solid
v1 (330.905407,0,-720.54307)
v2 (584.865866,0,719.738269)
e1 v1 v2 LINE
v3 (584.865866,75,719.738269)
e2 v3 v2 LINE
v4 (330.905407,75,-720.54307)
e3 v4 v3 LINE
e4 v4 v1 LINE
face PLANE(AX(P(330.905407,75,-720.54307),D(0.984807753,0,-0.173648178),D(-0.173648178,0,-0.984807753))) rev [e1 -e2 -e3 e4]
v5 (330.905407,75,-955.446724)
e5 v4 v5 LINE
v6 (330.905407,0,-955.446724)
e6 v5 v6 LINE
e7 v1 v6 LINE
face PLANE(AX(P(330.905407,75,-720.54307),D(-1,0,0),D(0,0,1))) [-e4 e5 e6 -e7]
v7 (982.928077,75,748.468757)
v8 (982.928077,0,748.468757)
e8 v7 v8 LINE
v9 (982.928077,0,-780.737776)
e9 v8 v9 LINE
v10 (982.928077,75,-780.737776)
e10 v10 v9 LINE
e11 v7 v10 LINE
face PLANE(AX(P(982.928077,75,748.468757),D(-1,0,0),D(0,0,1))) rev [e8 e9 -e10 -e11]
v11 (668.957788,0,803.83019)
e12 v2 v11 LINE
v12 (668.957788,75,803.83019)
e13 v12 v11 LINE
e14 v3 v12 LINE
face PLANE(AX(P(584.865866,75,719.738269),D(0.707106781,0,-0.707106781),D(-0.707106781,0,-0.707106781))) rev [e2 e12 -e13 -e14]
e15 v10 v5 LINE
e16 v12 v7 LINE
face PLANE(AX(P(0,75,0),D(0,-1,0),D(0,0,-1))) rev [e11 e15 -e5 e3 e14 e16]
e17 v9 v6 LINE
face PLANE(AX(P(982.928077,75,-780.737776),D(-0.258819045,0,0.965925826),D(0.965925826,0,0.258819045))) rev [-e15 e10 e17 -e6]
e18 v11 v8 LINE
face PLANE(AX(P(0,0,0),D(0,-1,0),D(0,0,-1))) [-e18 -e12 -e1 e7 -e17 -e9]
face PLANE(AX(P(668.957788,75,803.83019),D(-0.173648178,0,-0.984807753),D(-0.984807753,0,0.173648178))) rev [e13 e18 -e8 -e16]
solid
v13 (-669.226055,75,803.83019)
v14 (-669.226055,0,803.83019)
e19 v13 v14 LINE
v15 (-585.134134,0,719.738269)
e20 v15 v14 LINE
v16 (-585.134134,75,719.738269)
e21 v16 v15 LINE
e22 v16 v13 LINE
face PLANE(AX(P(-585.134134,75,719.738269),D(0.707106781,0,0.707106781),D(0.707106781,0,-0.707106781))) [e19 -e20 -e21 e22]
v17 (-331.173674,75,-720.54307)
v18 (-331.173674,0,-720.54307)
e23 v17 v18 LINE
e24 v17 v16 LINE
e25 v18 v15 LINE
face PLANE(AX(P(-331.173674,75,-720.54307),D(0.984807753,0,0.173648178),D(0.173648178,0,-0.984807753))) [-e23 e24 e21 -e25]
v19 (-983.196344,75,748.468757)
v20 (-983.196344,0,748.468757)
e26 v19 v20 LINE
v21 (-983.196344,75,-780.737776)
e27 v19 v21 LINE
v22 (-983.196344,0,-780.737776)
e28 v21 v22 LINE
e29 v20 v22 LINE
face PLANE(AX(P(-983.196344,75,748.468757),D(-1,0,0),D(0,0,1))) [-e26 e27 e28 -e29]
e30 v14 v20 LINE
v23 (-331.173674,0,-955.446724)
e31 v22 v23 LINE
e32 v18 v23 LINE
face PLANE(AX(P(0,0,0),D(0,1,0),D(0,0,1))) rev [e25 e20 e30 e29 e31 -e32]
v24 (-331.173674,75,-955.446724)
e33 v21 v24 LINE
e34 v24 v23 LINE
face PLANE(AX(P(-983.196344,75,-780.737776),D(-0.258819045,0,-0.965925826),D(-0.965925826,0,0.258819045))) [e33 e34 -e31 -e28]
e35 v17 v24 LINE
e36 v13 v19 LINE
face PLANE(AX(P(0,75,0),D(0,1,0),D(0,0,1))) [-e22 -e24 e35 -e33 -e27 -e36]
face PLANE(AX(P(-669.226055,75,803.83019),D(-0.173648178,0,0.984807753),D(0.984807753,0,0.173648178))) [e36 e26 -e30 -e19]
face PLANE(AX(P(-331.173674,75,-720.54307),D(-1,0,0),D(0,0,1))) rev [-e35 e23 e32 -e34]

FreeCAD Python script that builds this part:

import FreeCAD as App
import Part
import Sketcher
Q = App.Units.Quantity


def add_polygon(sketch, points):
    """Adds a closed chain of lines whose ends are joined by coincident constraints."""
    first, n = sketch.GeometryCount, len(points)
    for a, b in zip(points, points[1:] + points[:1]):
        sketch.addGeometry(Part.LineSegment(App.Vector(*a, 0), App.Vector(*b, 0)), False)
    for i in range(n):
        sketch.addConstraint(Sketcher.Constraint("Coincident", first + i, 2, first + (i + 1) % n, 1))

doc = App.newDocument("Part")
body = doc.addObject("PartDesign::Body", "Body")

sketch1 = body.newObject("Sketcher::SketchObject", "Sketch")
sketch1.AttachmentSupport = (doc.getObject("XZ_Plane"), [""])
sketch1.MapMode = "FlatFace"
add_polygon(sketch1, [(585, 720), (669, 804), (983, 748), (983, -781), (331, -955), (331, -721)])
sketch1.addConstraint([
    Sketcher.Constraint("Vertical", 2),
    Sketcher.Constraint("Vertical", 4),
    Sketcher.Constraint("Perpendicular", 1, 5),
    Sketcher.Constraint("Angle", 0, Q("45 deg")),
    Sketcher.Constraint("Angle", 1, Q("-10 deg")),
    Sketcher.Constraint("Angle", 3, Q("-165 deg")),
    Sketcher.Constraint("Distance", 5, Q("1462.5 mm")),
    Sketcher.Constraint("Distance", 3, Q("675.02354 mm")),
    Sketcher.Constraint("DistanceY", 2, 2, 2, 1, Q("1529.206533 mm")),
    Sketcher.Constraint("DistanceY", 4, 1, 4, 2, Q("234.903654 mm")),
    Sketcher.Constraint("DistanceY", -1, 1, 0, 2, Q("803.83019 mm")),
    Sketcher.Constraint("DistanceX", -1, 1, 0, 2, Q("668.957788 mm")),
])
pad1 = body.newObject("PartDesign::Pad", "Pad")
pad1.Profile = sketch1
pad1.Length = 75
pad1.Reversed = True
body2 = doc.addObject("PartDesign::Body", "Body001")

sketch2 = body2.newObject("Sketcher::SketchObject", "Sketch001")
sketch2.AttachmentSupport = (doc.getObject("XZ_Plane001"), [""])
sketch2.MapMode = "FlatFace"
add_polygon(sketch2, [(-331, -721), (-331, -955), (-983, -781), (-983, 748), (-669, 804), (-585, 720)])
sketch2.addConstraint([
    Sketcher.Constraint("Vertical", 0),
    Sketcher.Constraint("Vertical", 2),
    Sketcher.Constraint("Perpendicular", 3, 5),
    Sketcher.Constraint("Angle", 1, Q("165 deg")),
    Sketcher.Constraint("Angle", 3, Q("10 deg")),
    Sketcher.Constraint("Angle", 4, Q("-45 deg")),
    Sketcher.Constraint("Distance", 5, Q("1462.5 mm")),
    Sketcher.Constraint("Distance", 1, Q("675.02354 mm")),
    Sketcher.Constraint("DistanceY", 0, 2, 0, 1, Q("234.903654 mm")),
    Sketcher.Constraint("DistanceY", 2, 1, 2, 2, Q("1529.206533 mm")),
    Sketcher.Constraint("DistanceY", -1, 1, 3, 2, Q("803.83019 mm")),
    Sketcher.Constraint("DistanceX", 0, 2, -1, 1, Q("331.173674 mm")),
])
pad2 = body2.newObject("PartDesign::Pad", "Pad001")
pad2.Profile = sketch2
pad2.Length = 75
pad2.Reversed = True

doc.recompute()
